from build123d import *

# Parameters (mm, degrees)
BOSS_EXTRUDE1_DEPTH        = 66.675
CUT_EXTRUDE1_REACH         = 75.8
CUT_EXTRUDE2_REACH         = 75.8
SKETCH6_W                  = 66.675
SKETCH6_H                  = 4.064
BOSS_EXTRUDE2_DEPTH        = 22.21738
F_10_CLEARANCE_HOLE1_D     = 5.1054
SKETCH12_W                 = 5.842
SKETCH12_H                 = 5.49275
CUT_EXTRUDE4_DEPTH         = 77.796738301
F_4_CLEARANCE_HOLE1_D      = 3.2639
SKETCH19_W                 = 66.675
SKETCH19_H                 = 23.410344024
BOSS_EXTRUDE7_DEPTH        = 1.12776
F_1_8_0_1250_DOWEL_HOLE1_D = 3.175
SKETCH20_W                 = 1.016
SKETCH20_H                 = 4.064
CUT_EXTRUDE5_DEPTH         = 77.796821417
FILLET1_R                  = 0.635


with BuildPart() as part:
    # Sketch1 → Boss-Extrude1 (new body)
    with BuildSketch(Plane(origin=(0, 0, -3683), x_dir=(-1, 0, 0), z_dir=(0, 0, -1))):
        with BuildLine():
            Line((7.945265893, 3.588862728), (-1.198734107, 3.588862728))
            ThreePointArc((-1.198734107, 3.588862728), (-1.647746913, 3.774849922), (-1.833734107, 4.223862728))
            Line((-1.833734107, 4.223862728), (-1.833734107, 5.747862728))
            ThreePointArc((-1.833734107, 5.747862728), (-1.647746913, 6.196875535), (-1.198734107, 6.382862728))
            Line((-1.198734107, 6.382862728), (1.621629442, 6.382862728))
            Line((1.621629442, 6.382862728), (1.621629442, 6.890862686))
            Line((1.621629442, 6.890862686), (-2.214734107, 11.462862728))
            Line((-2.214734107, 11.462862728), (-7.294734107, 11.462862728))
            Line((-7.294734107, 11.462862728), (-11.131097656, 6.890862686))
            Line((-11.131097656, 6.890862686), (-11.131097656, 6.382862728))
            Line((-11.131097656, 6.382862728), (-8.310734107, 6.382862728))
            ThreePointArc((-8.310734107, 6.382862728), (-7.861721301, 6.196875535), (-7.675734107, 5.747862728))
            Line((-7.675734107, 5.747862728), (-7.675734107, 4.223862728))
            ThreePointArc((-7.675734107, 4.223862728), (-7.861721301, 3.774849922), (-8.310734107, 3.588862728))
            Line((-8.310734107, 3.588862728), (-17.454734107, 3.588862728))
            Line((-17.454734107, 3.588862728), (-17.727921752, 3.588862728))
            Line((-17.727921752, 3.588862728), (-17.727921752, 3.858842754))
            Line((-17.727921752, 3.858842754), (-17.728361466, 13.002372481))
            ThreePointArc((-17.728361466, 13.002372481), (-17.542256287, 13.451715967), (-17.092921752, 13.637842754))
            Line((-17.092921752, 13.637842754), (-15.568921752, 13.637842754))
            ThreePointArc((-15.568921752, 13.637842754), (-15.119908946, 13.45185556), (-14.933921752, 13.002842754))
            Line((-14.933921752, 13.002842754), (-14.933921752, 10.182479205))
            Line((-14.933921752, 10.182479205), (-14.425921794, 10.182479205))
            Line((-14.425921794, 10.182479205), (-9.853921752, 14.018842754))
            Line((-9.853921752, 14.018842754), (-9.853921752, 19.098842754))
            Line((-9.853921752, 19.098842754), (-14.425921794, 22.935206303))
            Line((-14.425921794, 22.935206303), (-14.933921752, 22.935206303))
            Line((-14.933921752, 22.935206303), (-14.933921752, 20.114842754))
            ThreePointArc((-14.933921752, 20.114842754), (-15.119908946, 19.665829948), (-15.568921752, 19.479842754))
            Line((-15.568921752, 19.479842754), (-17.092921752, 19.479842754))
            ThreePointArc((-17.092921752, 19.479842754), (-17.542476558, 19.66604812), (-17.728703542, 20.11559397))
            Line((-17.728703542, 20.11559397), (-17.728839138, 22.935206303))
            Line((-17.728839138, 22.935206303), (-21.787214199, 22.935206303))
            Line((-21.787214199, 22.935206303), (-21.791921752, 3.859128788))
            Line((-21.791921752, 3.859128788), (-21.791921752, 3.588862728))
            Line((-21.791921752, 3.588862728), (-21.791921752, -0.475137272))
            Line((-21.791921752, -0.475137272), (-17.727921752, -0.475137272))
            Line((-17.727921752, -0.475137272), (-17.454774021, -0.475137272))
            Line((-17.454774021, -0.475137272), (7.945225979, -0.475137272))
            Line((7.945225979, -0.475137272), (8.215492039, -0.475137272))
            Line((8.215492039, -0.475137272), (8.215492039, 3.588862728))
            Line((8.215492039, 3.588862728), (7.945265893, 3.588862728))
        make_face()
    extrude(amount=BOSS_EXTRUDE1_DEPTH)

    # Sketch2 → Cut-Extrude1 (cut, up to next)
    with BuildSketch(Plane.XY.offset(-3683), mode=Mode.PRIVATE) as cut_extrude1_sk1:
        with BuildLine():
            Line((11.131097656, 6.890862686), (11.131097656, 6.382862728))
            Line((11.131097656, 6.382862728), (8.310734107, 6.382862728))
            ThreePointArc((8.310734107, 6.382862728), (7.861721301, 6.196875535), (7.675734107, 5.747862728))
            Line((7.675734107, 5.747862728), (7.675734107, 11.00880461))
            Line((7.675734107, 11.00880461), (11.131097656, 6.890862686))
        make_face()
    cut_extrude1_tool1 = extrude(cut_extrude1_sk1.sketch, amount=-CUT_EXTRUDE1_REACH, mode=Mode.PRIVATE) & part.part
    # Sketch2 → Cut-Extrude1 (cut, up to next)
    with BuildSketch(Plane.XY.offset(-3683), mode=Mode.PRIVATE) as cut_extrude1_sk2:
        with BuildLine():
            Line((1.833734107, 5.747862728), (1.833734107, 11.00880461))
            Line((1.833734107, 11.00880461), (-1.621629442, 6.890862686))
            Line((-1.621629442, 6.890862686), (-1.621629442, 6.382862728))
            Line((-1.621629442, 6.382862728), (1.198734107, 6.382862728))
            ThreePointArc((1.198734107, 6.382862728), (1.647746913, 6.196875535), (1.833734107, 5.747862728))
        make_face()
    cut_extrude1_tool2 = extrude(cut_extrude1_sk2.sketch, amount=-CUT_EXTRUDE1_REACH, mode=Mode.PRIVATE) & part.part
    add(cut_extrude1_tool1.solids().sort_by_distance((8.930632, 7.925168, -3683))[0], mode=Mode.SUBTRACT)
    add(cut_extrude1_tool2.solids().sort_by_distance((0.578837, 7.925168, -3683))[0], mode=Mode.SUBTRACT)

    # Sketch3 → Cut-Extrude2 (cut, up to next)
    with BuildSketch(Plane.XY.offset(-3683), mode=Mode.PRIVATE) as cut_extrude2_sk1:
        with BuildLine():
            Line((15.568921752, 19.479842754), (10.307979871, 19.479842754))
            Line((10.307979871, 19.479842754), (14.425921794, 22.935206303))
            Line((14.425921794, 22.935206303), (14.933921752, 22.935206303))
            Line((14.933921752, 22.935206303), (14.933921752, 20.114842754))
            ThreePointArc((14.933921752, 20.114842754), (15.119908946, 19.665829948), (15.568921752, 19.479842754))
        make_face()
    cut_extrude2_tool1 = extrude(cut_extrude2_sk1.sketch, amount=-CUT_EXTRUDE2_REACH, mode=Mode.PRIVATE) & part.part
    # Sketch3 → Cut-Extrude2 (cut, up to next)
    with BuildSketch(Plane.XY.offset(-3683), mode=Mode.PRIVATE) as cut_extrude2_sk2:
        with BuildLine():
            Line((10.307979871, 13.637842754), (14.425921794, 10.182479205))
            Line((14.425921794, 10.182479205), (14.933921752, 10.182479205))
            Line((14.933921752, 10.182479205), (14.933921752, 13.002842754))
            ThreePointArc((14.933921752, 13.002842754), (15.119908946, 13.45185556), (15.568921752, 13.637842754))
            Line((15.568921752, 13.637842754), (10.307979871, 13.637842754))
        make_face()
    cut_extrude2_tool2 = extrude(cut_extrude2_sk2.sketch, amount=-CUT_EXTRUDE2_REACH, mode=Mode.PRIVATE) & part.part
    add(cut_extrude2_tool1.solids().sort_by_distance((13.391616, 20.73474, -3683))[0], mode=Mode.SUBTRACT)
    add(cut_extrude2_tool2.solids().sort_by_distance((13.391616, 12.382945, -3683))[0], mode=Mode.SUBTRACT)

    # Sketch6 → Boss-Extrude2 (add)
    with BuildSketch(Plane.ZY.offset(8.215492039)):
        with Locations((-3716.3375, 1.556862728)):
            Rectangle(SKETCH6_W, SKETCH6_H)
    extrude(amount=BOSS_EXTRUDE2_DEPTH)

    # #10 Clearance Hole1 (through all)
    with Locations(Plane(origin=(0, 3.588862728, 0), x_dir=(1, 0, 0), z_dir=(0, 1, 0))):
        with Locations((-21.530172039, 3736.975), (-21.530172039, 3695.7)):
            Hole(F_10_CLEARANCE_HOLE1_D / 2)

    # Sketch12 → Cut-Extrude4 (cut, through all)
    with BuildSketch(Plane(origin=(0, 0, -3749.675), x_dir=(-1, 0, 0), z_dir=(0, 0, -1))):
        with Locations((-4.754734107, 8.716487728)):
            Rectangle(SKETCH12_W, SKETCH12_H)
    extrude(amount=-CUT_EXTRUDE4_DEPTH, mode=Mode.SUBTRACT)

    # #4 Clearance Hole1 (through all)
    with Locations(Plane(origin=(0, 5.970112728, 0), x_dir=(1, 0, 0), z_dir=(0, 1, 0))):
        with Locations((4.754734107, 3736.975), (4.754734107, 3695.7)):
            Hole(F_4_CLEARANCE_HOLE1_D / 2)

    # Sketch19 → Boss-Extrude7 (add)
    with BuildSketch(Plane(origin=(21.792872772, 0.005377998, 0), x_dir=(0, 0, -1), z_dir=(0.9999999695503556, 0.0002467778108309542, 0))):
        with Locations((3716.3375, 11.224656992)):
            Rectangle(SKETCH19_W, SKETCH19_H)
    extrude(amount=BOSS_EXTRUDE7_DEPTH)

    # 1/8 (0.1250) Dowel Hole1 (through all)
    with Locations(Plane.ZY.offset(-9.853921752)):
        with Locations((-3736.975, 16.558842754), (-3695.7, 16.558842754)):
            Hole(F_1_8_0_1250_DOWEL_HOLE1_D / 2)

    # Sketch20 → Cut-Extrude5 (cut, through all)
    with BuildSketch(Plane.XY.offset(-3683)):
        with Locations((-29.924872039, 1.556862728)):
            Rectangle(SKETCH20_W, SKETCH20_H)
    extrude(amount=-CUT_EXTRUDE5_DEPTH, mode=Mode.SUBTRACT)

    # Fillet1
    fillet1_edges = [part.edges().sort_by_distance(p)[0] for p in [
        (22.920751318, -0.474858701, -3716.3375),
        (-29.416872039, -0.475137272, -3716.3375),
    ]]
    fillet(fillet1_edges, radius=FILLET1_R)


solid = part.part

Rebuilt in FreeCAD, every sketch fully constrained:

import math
import FreeCAD as App
import Part
import Sketcher

V = App.Vector
Q = App.Units.Quantity


def edges_at(feature, points):
    """Names of the edges that pass closest to the given points."""
    edges = feature.Shape.Edges
    near = lambda p: min(range(len(edges)), key=lambda i: edges[i].distToShape(Part.Vertex(*p))[0])
    return sorted({f"Edge{near(p) + 1}" for p in points})

doc = App.newDocument("Part")
body = doc.addObject("PartDesign::Body", "Body")

# Sketch on XY plane
sketch1 = body.newObject("Sketcher::SketchObject", "Sketch")
sketch1.AttachmentSupport = (doc.getObject("XY_Plane"), [""])
sketch1.MapMode = "FlatFace"
sketch1.AttachmentOffset = App.Placement(V(0, 0, -145 * 25.4), App.Rotation())
sketch1.addGeometry(Part.ArcOfCircle(Part.Circle(V(1.2, 4.22, 0), V(0, 0, 1), 0.64), math.radians(-90), math.radians(0)), False)
sketch1.addGeometry(Part.LineSegment(V(1.83, 4.22, 0), V(1.83, 5.75, 0)), False)
sketch1.addGeometry(Part.ArcOfCircle(Part.Circle(V(1.2, 5.75, 0), V(0, 0, 1), 0.63), math.radians(0), math.radians(90)), False)
sketch1.addGeometry(Part.LineSegment(V(1.2, 6.38, 0), V(-1.62, 6.38, 0)), False)
sketch1.addGeometry(Part.LineSegment(V(-1.62, 6.38, 0), V(-1.62, 6.89, 0)), False)
sketch1.addGeometry(Part.LineSegment(V(-1.62, 6.89, 0), V(2.21, 11.46, 0)), False)
sketch1.addGeometry(Part.LineSegment(V(2.21, 11.46, 0), V(7.29, 11.46, 0)), False)
sketch1.addGeometry(Part.LineSegment(V(7.29, 11.46, 0), V(11.13, 6.89, 0)), False)
sketch1.addGeometry(Part.LineSegment(V(11.13, 6.89, 0), V(11.13, 6.38, 0)), False)
sketch1.addGeometry(Part.LineSegment(V(11.13, 6.38, 0), V(8.31, 6.38, 0)), False)
sketch1.addGeometry(Part.ArcOfCircle(Part.Circle(V(8.31, 5.75, 0), V(0, 0, 1), 0.63), math.radians(90), math.radians(180)), False)
sketch1.addGeometry(Part.LineSegment(V(7.68, 5.75, 0), V(7.68, 4.22, 0)), False)
sketch1.addGeometry(Part.ArcOfCircle(Part.Circle(V(8.31, 4.22, 0), V(0, 0, 1), 0.64), math.radians(180), math.radians(270)), False)
sketch1.addGeometry(Part.LineSegment(V(8.31, 3.59, 0), V(17.73, 3.59, 0)), False)
sketch1.addGeometry(Part.LineSegment(V(17.73, 3.59, 0), V(17.73, 3.86, 0)), False)
sketch1.addGeometry(Part.LineSegment(V(17.73, 3.86, 0), V(17.73, 13, 0)), False)
sketch1.addGeometry(Part.ArcOfCircle(Part.Circle(V(17.09, 13, 0), V(0, 0, 1), 0.64), math.radians(0), math.radians(90)), False)
sketch1.addGeometry(Part.LineSegment(V(17.09, 13.64, 0), V(15.57, 13.64, 0)), False)
sketch1.addGeometry(Part.ArcOfCircle(Part.Circle(V(15.57, 13, 0), V(0, 0, 1), 0.64), math.radians(90), math.radians(180)), False)
sketch1.addGeometry(Part.LineSegment(V(14.93, 13, 0), V(14.93, 10.18, 0)), False)
sketch1.addGeometry(Part.LineSegment(V(14.93, 10.18, 0), V(14.43, 10.18, 0)), False)
sketch1.addGeometry(Part.LineSegment(V(14.43, 10.18, 0), V(9.85, 14.02, 0)), False)
sketch1.addGeometry(Part.LineSegment(V(9.85, 14.02, 0), V(9.85, 19.1, 0)), False)
sketch1.addGeometry(Part.LineSegment(V(9.85, 19.1, 0), V(14.43, 22.94, 0)), False)
sketch1.addGeometry(Part.LineSegment(V(14.43, 22.94, 0), V(14.93, 22.94, 0)), False)
sketch1.addGeometry(Part.LineSegment(V(14.93, 22.94, 0), V(14.93, 20.11, 0)), False)
sketch1.addGeometry(Part.ArcOfCircle(Part.Circle(V(15.57, 20.11, 0), V(0, 0, 1), 0.64), math.radians(180), math.radians(270)), False)
sketch1.addGeometry(Part.LineSegment(V(15.57, 19.48, 0), V(17.09, 19.48, 0)), False)
sketch1.addGeometry(Part.ArcOfCircle(Part.Circle(V(17.09, 20.12, 0), V(0, 0, 1), 0.64), math.radians(-90), math.radians(0)), False)
sketch1.addGeometry(Part.LineSegment(V(17.73, 20.12, 0), V(17.73, 22.94, 0)), False)
sketch1.addGeometry(Part.LineSegment(V(17.73, 22.94, 0), V(21.79, 22.94, 0)), False)
sketch1.addGeometry(Part.LineSegment(V(21.79, 22.94, 0), V(21.79, 3.86, 0)), False)
sketch1.addGeometry(Part.LineSegment(V(21.79, 3.86, 0), V(21.79, -0.48, 0)), False)
sketch1.addGeometry(Part.LineSegment(V(21.79, -0.48, 0), V(-8.22, -0.48, 0)), False)
sketch1.addGeometry(Part.LineSegment(V(-8.22, -0.48, 0), V(-8.22, 3.59, 0)), False)
sketch1.addGeometry(Part.LineSegment(V(-8.22, 3.59, 0), V(1.2, 3.59, 0)), False)
sketch1.addConstraint(Sketcher.Constraint("Tangent", 0, 2, 1, 1))
sketch1.addConstraint(Sketcher.Constraint("Tangent", 1, 2, 2, 1))
sketch1.addConstraint(Sketcher.Constraint("Tangent", 2, 2, 3, 1))
sketch1.addConstraint(Sketcher.Constraint("Coincident", 3, 2, 4, 1))
sketch1.addConstraint(Sketcher.Constraint("Coincident", 4, 2, 5, 1))
sketch1.addConstraint(Sketcher.Constraint("Coincident", 5, 2, 6, 1))
sketch1.addConstraint(Sketcher.Constraint("Coincident", 6, 2, 7, 1))
sketch1.addConstraint(Sketcher.Constraint("Coincident", 7, 2, 8, 1))
sketch1.addConstraint(Sketcher.Constraint("Coincident", 8, 2, 9, 1))
sketch1.addConstraint(Sketcher.Constraint("Tangent", 9, 2, 10, 1))
sketch1.addConstraint(Sketcher.Constraint("Tangent", 10, 2, 11, 1))
sketch1.addConstraint(Sketcher.Constraint("Tangent", 11, 2, 12, 1))
sketch1.addConstraint(Sketcher.Constraint("Tangent", 12, 2, 13, 1))
sketch1.addConstraint(Sketcher.Constraint("Coincident", 13, 2, 14, 1))
sketch1.addConstraint(Sketcher.Constraint("Coincident", 14, 2, 15, 1))
sketch1.addConstraint(Sketcher.Constraint("Tangent", 15, 2, 16, 1))
sketch1.addConstraint(Sketcher.Constraint("Tangent", 16, 2, 17, 1))
sketch1.addConstraint(Sketcher.Constraint("Tangent", 17, 2, 18, 1))
sketch1.addConstraint(Sketcher.Constraint("Tangent", 18, 2, 19, 1))
sketch1.addConstraint(Sketcher.Constraint("Coincident", 19, 2, 20, 1))
sketch1.addConstraint(Sketcher.Constraint("Coincident", 20, 2, 21, 1))
sketch1.addConstraint(Sketcher.Constraint("Coincident", 21, 2, 22, 1))
sketch1.addConstraint(Sketcher.Constraint("Coincident", 22, 2, 23, 1))
sketch1.addConstraint(Sketcher.Constraint("Coincident", 23, 2, 24, 1))
sketch1.addConstraint(Sketcher.Constraint("Coincident", 24, 2, 25, 1))
sketch1.addConstraint(Sketcher.Constraint("Tangent", 25, 2, 26, 1))
sketch1.addConstraint(Sketcher.Constraint("Tangent", 26, 2, 27, 1))
sketch1.addConstraint(Sketcher.Constraint("Tangent", 27, 2, 28, 1))
sketch1.addConstraint(Sketcher.Constraint("Tangent", 28, 2, 29, 1))
sketch1.addConstraint(Sketcher.Constraint("Coincident", 29, 2, 30, 1))
sketch1.addConstraint(Sketcher.Constraint("Coincident", 30, 2, 31, 1))
sketch1.addConstraint(Sketcher.Constraint("Coincident", 31, 2, 32, 1))
sketch1.addConstraint(Sketcher.Constraint("Coincident", 32, 2, 33, 1))
sketch1.addConstraint(Sketcher.Constraint("Coincident", 33, 2, 34, 1))
sketch1.addConstraint(Sketcher.Constraint("Coincident", 34, 2, 35, 1))
sketch1.addConstraint(Sketcher.Constraint("Tangent", 35, 2, 0, 1))
sketch1.addConstraint(Sketcher.Constraint("Vertical", 1))
sketch1.addConstraint(Sketcher.Constraint("Horizontal", 3))
sketch1.addConstraint(Sketcher.Constraint("Vertical", 4))
sketch1.addConstraint(Sketcher.Constraint("Horizontal", 6))
sketch1.addConstraint(Sketcher.Constraint("Vertical", 8))
sketch1.addConstraint(Sketcher.Constraint("Horizontal", 9))
sketch1.addConstraint(Sketcher.Constraint("Vertical", 11))
sketch1.addConstraint(Sketcher.Constraint("Horizontal", 13))
sketch1.addConstraint(Sketcher.Constraint("Vertical", 14))
sketch1.addConstraint(Sketcher.Constraint("Horizontal", 17))
sketch1.addConstraint(Sketcher.Constraint("Vertical", 19))
sketch1.addConstraint(Sketcher.Constraint("Horizontal", 20))
sketch1.addConstraint(Sketcher.Constraint("Vertical", 22))
sketch1.addConstraint(Sketcher.Constraint("Horizontal", 24))
sketch1.addConstraint(Sketcher.Constraint("Vertical", 25))
sketch1.addConstraint(Sketcher.Constraint("Horizontal", 27))
sketch1.addConstraint(Sketcher.Constraint("Horizontal", 30))
sketch1.addConstraint(Sketcher.Constraint("Vertical", 32))
sketch1.addConstraint(Sketcher.Constraint("Horizontal", 33))
sketch1.addConstraint(Sketcher.Constraint("Vertical", 34))
sketch1.addConstraint(Sketcher.Constraint("Horizontal", 35))
sketch1.addConstraint(Sketcher.Constraint("Equal", 0, 2))
sketch1.addConstraint(Sketcher.Constraint("Equal", 2, 10))
sketch1.addConstraint(Sketcher.Constraint("Equal", 10, 12))
sketch1.addConstraint(Sketcher.Constraint("Equal", 12, 18))
sketch1.addConstraint(Sketcher.Constraint("Equal", 18, 26))
sketch1.addConstraint(Sketcher.Constraint("Perpendicular", 5, 21))
sketch1.addConstraint(Sketcher.Constraint("Perpendicular", 7, 23))
sketch1.addConstraint(Sketcher.Constraint("Parallel", 15, 29))
sketch1.addConstraint(Sketcher.Constraint("Horizontal", 2, 3, 10, 3))
sketch1.addConstraint(Sketcher.Constraint("Horizontal", 0, 3, 12, 3))
sketch1.addConstraint(Sketcher.Constraint("Horizontal", 4, 2, 7, 2))
sketch1.addConstraint(Sketcher.Constraint("Horizontal", 24, 2, 29, 2))
sketch1.addConstraint(Sketcher.Constraint("Vertical", 18, 3, 26, 3))
sketch1.addConstraint(Sketcher.Constraint("Vertical", 16, 3, 28, 3))
sketch1.addConstraint(Sketcher.Constraint("Vertical", 20, 2, 23, 2))
sketch1.addConstraint(Sketcher.Constraint("Equal", 3, 9))
sketch1.addConstraint(Sketcher.Constraint("Equal", 27, 1))
sketch1.addConstraint(Sketcher.Constraint("Equal", 24, 4))
sketch1.addConstraint(Sketcher.Constraint("Equal", 9, 19))
sketch1.addConstraint(Sketcher.Constraint("Equal", 6, 22))
sketch1.addConstraint(Sketcher.Constraint("Equal", 19, 25))
sketch1.addConstraint(Sketcher.Constraint("Equal", 5, 7))
sketch1.addConstraint(Sketcher.Constraint("Equal", 7, 21))
sketch1.addConstraint(Sketcher.Constraint("DistanceX", 6, 1, 6, 2, Q("0.2 in")))
sketch1.addConstraint(Sketcher.Constraint("Angle", 5, Q("50 deg")))
sketch1.addConstraint(Sketcher.Constraint("Radius", 0, Q("0.025 in")))
sketch1.addConstraint(Sketcher.Constraint("DistanceX", 17, 2, 17, 1, Q("0.06 in")))
sketch1.addConstraint(Sketcher.Constraint("DistanceX", 20, 2, 20, 1, Q("0.02 in")))
sketch1.addConstraint(Sketcher.Constraint("DistanceY", 34, 1, 34, 2, Q("0.16 in")))
sketch1.addConstraint(Sketcher.Constraint("DistanceY", 2, 2, 5, 2, Q("0.2 in")))
sketch1.addConstraint(Sketcher.Constraint("DistanceX", 2, 3, 10, 3, Q("0.28 in")))
sketch1.addConstraint(Sketcher.Constraint("DistanceY", 14, 2, 18, 3, Q("0.36 in")))
sketch1.addConstraint(Sketcher.Constraint("DistanceX", 14, 2, 31, 2, Q("0.16 in")))
sketch1.addConstraint(Sketcher.Constraint("DistanceX", 19, 2, 31, 2, Q("0.27 in")))
sketch1.addConstraint(Sketcher.Constraint("Radius", 16, 0.63544))
sketch1.addConstraint(Sketcher.Constraint("Radius", 28, 0.635782))
sketch1.addConstraint(Sketcher.Constraint("DistanceY", 14, 1, 14, 2, 0.26998))
sketch1.addConstraint(Sketcher.Constraint("Distance", 31, 19.076078))
sketch1.addConstraint(Sketcher.Constraint("DistanceX", 13, 1, 13, 2, 9.417188))
sketch1.addConstraint(Sketcher.Constraint("DistanceX", 30, 1, 30, 2, 4.058375))
sketch1.addConstraint(Sketcher.Constraint("DistanceX", 33, 2, 33, 1, 30.007414))
sketch1.addConstraint(Sketcher.Constraint("DistanceX", -1, 1, 16, 3, 17.092922))
sketch1.addConstraint(Sketcher.Constraint("DistanceY", -1, 1, 19, 2, 10.182479))
pad1 = body.newObject("PartDesign::Pad", "Pad")
pad1.Profile = sketch1
pad1.Length = Q("2.625 in")
pad1.Reversed = True

# Sketch on XY plane
sketch2 = body.newObject("Sketcher::SketchObject", "Sketch001")
sketch2.AttachmentSupport = (doc.getObject("XY_Plane"), [""])
sketch2.MapMode = "FlatFace"
sketch2.AttachmentOffset = App.Placement(V(0, 0, -145 * 25.4), App.Rotation())
sketch2.addGeometry(Part.LineSegment(V(11.1, 6.4, 0), V(11.1, 6.9, 0)), False)
sketch2.addGeometry(Part.LineSegment(V(11.1, 6.9, 0), V(7.7, 11, 0)), False)
sketch2.addGeometry(Part.LineSegment(V(7.7, 11, 0), V(7.7, 5.7, 0)), False)
sketch2.addGeometry(Part.ArcOfCircle(Part.Circle(V(8.3, 5.7, 0), V(0, 0, 1), 0.6), math.radians(90), math.radians(180)), False)
sketch2.addGeometry(Part.LineSegment(V(8.3, 6.4, 0), V(11.1, 6.4, 0)), False)
sketch2.addConstraint(Sketcher.Constraint("Coincident", 0, 2, 1, 1))
sketch2.addConstraint(Sketcher.Constraint("Coincident", 1, 2, 2, 1))
sketch2.addConstraint(Sketcher.Constraint("Tangent", 2, 2, 3, 2))
sketch2.addConstraint(Sketcher.Constraint("Tangent", 3, 1, 4, 1))
sketch2.addConstraint(Sketcher.Constraint("Coincident", 4, 2, 0, 1))
sketch2.addConstraint(Sketcher.Constraint("Vertical", 0))
sketch2.addConstraint(Sketcher.Constraint("Vertical", 2))
sketch2.addConstraint(Sketcher.Constraint("Horizontal", 4))
sketch2.addConstraint(Sketcher.Constraint("Angle", 1, Q("130 deg")))
sketch2.addConstraint(Sketcher.Constraint("Radius", 3, Q("0.025 in")))
sketch2.addConstraint(Sketcher.Constraint("DistanceY", 0, 1, 0, 2, Q("0.02 in")))
sketch2.addConstraint(Sketcher.Constraint("DistanceY", 2, 2, 2, 1, 5.260942))
sketch2.addConstraint(Sketcher.Constraint("DistanceX", -1, 1, 3, 3, 8.310734))
sketch2.addConstraint(Sketcher.Constraint("DistanceY", -1, 1, 3, 3, 5.747863))
pocket1 = body.newObject("PartDesign::Pocket", "Pocket")
pocket1.Profile = sketch2
pocket1.Type = "UpToFirst"

# Sketch on XY plane
sketch3 = body.newObject("Sketcher::SketchObject", "Sketch002")
sketch3.AttachmentSupport = (doc.getObject("XY_Plane"), [""])
sketch3.MapMode = "FlatFace"
sketch3.AttachmentOffset = App.Placement(V(0, 0, -145 * 25.4), App.Rotation())
sketch3.addGeometry(Part.LineSegment(V(1.8, 5.7, 0), V(1.8, 11, 0)), False)
sketch3.addGeometry(Part.LineSegment(V(1.8, 11, 0), V(-1.6, 6.9, 0)), False)
sketch3.addGeometry(Part.LineSegment(V(-1.6, 6.9, 0), V(-1.6, 6.4, 0)), False)
sketch3.addGeometry(Part.LineSegment(V(-1.6, 6.4, 0), V(1.2, 6.4, 0)), False)
sketch3.addGeometry(Part.ArcOfCircle(Part.Circle(V(1.2, 5.7, 0), V(0, 0, 1), 0.6), math.radians(0), math.radians(90)), False)
sketch3.addConstraint(Sketcher.Constraint("Coincident", 0, 2, 1, 1))
sketch3.addConstraint(Sketcher.Constraint("Coincident", 1, 2, 2, 1))
sketch3.addConstraint(Sketcher.Constraint("Coincident", 2, 2, 3, 1))
sketch3.addConstraint(Sketcher.Constraint("Tangent", 3, 2, 4, 2))
sketch3.addConstraint(Sketcher.Constraint("Tangent", 4, 1, 0, 1))
sketch3.addConstraint(Sketcher.Constraint("Vertical", 0))
sketch3.addConstraint(Sketcher.Constraint("Vertical", 2))
sketch3.addConstraint(Sketcher.Constraint("Horizontal", 3))
sketch3.addConstraint(Sketcher.Constraint("Angle", 1, Q("-130 deg")))
sketch3.addConstraint(Sketcher.Constraint("Radius", 4, Q("0.025 in")))
sketch3.addConstraint(Sketcher.Constraint("DistanceY", 2, 2, 2, 1, Q("0.02 in")))
sketch3.addConstraint(Sketcher.Constraint("DistanceY", 0, 1, 0, 2, 5.260942))
sketch3.addConstraint(Sketcher.Constraint("DistanceX", 1, 2, -1, 1, 1.621629))
sketch3.addConstraint(Sketcher.Constraint("DistanceY", -1, 1, 4, 3, 5.747863))
pocket2 = body.newObject("PartDesign::Pocket", "Pocket001")
pocket2.Profile = sketch3
pocket2.Type = "UpToFirst"

# Sketch on XY plane
sketch4 = body.newObject("Sketcher::SketchObject", "Sketch003")
sketch4.AttachmentSupport = (doc.getObject("XY_Plane"), [""])
sketch4.MapMode = "FlatFace"
sketch4.AttachmentOffset = App.Placement(V(0, 0, -145 * 25.4), App.Rotation())
sketch4.addGeometry(Part.LineSegment(V(10.3, 19.5, 0), V(15.6, 19.5, 0)), False)
sketch4.addGeometry(Part.ArcOfCircle(Part.Circle(V(15.6, 20.1, 0), V(0, 0, 1), 0.6), math.radians(180), math.radians(270)), False)
sketch4.addGeometry(Part.LineSegment(V(14.9, 20.1, 0), V(14.9, 22.9, 0)), False)
sketch4.addGeometry(Part.LineSegment(V(14.9, 22.9, 0), V(14.4, 22.9, 0)), False)
sketch4.addGeometry(Part.LineSegment(V(14.4, 22.9, 0), V(10.3, 19.5, 0)), False)
sketch4.addConstraint(Sketcher.Constraint("Tangent", 0, 2, 1, 2))
sketch4.addConstraint(Sketcher.Constraint("Tangent", 1, 1, 2, 1))
sketch4.addConstraint(Sketcher.Constraint("Coincident", 2, 2, 3, 1))
sketch4.addConstraint(Sketcher.Constraint("Coincident", 3, 2, 4, 1))
sketch4.addConstraint(Sketcher.Constraint("Coincident", 4, 2, 0, 1))
sketch4.addConstraint(Sketcher.Constraint("Horizontal", 0))
sketch4.addConstraint(Sketcher.Constraint("Vertical", 2))
sketch4.addConstraint(Sketcher.Constraint("Horizontal", 3))
sketch4.addConstraint(Sketcher.Constraint("Angle", 4, Q("-140 deg")))
sketch4.addConstraint(Sketcher.Constraint("Radius", 1, Q("0.025 in")))
sketch4.addConstraint(Sketcher.Constraint("DistanceX", 3, 2, 3, 1, Q("0.02 in")))
sketch4.addConstraint(Sketcher.Constraint("DistanceX", 0, 1, 0, 2, 5.260942))
sketch4.addConstraint(Sketcher.Constraint("DistanceX", -1, 1, 1, 3, 15.568922))
sketch4.addConstraint(Sketcher.Constraint("DistanceY", -1, 1, 1, 3, 20.114843))
pocket3 = body.newObject("PartDesign::Pocket", "Pocket002")
pocket3.Profile = sketch4
pocket3.Type = "UpToFirst"

# Sketch on XY plane
sketch5 = body.newObject("Sketcher::SketchObject", "Sketch004")
sketch5.AttachmentSupport = (doc.getObject("XY_Plane"), [""])
sketch5.MapMode = "FlatFace"
sketch5.AttachmentOffset = App.Placement(V(0, 0, -145 * 25.4), App.Rotation())
sketch5.addGeometry(Part.LineSegment(V(10.3, 13.6, 0), V(14.4, 10.2, 0)), False)
sketch5.addGeometry(Part.LineSegment(V(14.4, 10.2, 0), V(14.9, 10.2, 0)), False)
sketch5.addGeometry(Part.LineSegment(V(14.9, 10.2, 0), V(14.9, 13, 0)), False)
sketch5.addGeometry(Part.ArcOfCircle(Part.Circle(V(15.6, 13, 0), V(0, 0, 1), 0.6), math.radians(90), math.radians(180)), False)
sketch5.addGeometry(Part.LineSegment(V(15.6, 13.6, 0), V(10.3, 13.6, 0)), False)
sketch5.addConstraint(Sketcher.Constraint("Coincident", 0, 2, 1, 1))
sketch5.addConstraint(Sketcher.Constraint("Coincident", 1, 2, 2, 1))
sketch5.addConstraint(Sketcher.Constraint("Tangent", 2, 2, 3, 2))
sketch5.addConstraint(Sketcher.Constraint("Tangent", 3, 1, 4, 1))
sketch5.addConstraint(Sketcher.Constraint("Coincident", 4, 2, 0, 1))
sketch5.addConstraint(Sketcher.Constraint("Horizontal", 1))
sketch5.addConstraint(Sketcher.Constraint("Vertical", 2))
sketch5.addConstraint(Sketcher.Constraint("Horizontal", 4))
sketch5.addConstraint(Sketcher.Constraint("Angle", 0, Q("-40 deg")))
sketch5.addConstraint(Sketcher.Constraint("Radius", 3, Q("0.025 in")))
sketch5.addConstraint(Sketcher.Constraint("DistanceX", 1, 1, 1, 2, Q("0.02 in")))
sketch5.addConstraint(Sketcher.Constraint("DistanceX", 4, 2, 4, 1, 5.260942))
sketch5.addConstraint(Sketcher.Constraint("DistanceX", -1, 1, 3, 3, 15.568922))
sketch5.addConstraint(Sketcher.Constraint("DistanceY", -1, 1, 0, 2, 10.182479))
pocket4 = body.newObject("PartDesign::Pocket", "Pocket003")
pocket4.Profile = sketch5
pocket4.Type = "UpToFirst"

# Sketch on YZ plane
sketch6 = body.newObject("Sketcher::SketchObject", "Sketch005")
sketch6.AttachmentSupport = (doc.getObject("YZ_Plane"), [""])
sketch6.MapMode = "FlatFace"
sketch6.AttachmentOffset = App.Placement(V(0, 0, -8.215492), App.Rotation())
sketch6.addGeometry(Part.LineSegment(V(3.6, -3749.7, 0), V(-0.5, -3749.7, 0)), False)
sketch6.addGeometry(Part.LineSegment(V(-0.5, -3749.7, 0), V(-0.5, -3683, 0)), False)
sketch6.addGeometry(Part.LineSegment(V(-0.5, -3683, 0), V(3.6, -3683, 0)), False)
sketch6.addGeometry(Part.LineSegment(V(3.6, -3683, 0), V(3.6, -3749.7, 0)), False)
sketch6.addConstraint(Sketcher.Constraint("Coincident", 0, 2, 1, 1))
sketch6.addConstraint(Sketcher.Constraint("Coincident", 1, 2, 2, 1))
sketch6.addConstraint(Sketcher.Constraint("Coincident", 2, 2, 3, 1))
sketch6.addConstraint(Sketcher.Constraint("Coincident", 3, 2, 0, 1))
sketch6.addConstraint(Sketcher.Constraint("Horizontal", 0))
sketch6.addConstraint(Sketcher.Constraint("Vertical", 1))
sketch6.addConstraint(Sketcher.Constraint("Horizontal", 2))
sketch6.addConstraint(Sketcher.Constraint("Vertical", 3))
sketch6.addConstraint(Sketcher.Constraint("DistanceY", 1, 2, -1, 1, Q("145 in")))
sketch6.addConstraint(Sketcher.Constraint("DistanceX", 0, 2, 0, 1, Q("0.16 in")))
sketch6.addConstraint(Sketcher.Constraint("DistanceY", 1, 1, 1, 2, Q("2.625 in")))
sketch6.addConstraint(Sketcher.Constraint("DistanceX", 0, 2, -1, 1, 0.475137))
pad2 = body.newObject("PartDesign::Pad", "Pad001")
pad2.Profile = sketch6
pad2.Length = Q("0.8747 in")
pad2.Reversed = True

# Sketch on XZ plane
sketch7 = body.newObject("Sketcher::SketchObject", "Sketch006")
sketch7.AttachmentSupport = (doc.getObject("XZ_Plane"), [""])
sketch7.MapMode = "FlatFace"
sketch7.AttachmentOffset = App.Placement(V(0, 0, -3.588863), App.Rotation())
sketch7.addGeometry(Part.Circle(V(-21.5, -3737, 0), V(0, 0, 1), 2.6), False)
sketch7.addGeometry(Part.Circle(V(-21.5, -3695.7, 0), V(0, 0, 1), 2.6), False)
sketch7.addConstraint(Sketcher.Constraint("Equal", 0, 1))
sketch7.addConstraint(Sketcher.Constraint("Vertical", 0, 3, 1, 3))
sketch7.addConstraint(Sketcher.Constraint("Diameter", 0, Q("0.201 in")))
sketch7.addConstraint(Sketcher.Constraint("DistanceY", 1, 3, -1, 1, Q("145.5 in")))
sketch7.addConstraint(Sketcher.Constraint("DistanceY", 0, 3, -1, 1, Q("147.125 in")))
sketch7.addConstraint(Sketcher.Constraint("DistanceX", 0, 3, -1, 1, 21.530172))
doc.recompute()
hole = body.newObject("PartDesign::Hole", "Hole")
hole.Profile = sketch7
hole.ThreadType = "None"
hole.Diameter = Q("0.201 in")
hole.DepthType = "ThroughAll"
hole.Reversed = True

# Sketch on XY plane
sketch8 = body.newObject("Sketcher::SketchObject", "Sketch007")
sketch8.AttachmentSupport = (doc.getObject("XY_Plane"), [""])
sketch8.MapMode = "FlatFace"
sketch8.AttachmentOffset = App.Placement(V(0, 0, -147.625 * 25.4), App.Rotation())
sketch8.addGeometry(Part.LineSegment(V(8, 11, 0), V(8, 6, 0)), False)
sketch8.addGeometry(Part.LineSegment(V(8, 6, 0), V(2, 6, 0)), False)
sketch8.addGeometry(Part.LineSegment(V(2, 6, 0), V(2, 11, 0)), False)
sketch8.addGeometry(Part.LineSegment(V(2, 11, 0), V(8, 11, 0)), False)
sketch8.addConstraint(Sketcher.Constraint("Coincident", 0, 2, 1, 1))
sketch8.addConstraint(Sketcher.Constraint("Coincident", 1, 2, 2, 1))
sketch8.addConstraint(Sketcher.Constraint("Coincident", 2, 2, 3, 1))
sketch8.addConstraint(Sketcher.Constraint("Coincident", 3, 2, 0, 1))
sketch8.addConstraint(Sketcher.Constraint("Vertical", 0))
sketch8.addConstraint(Sketcher.Constraint("Horizontal", 1))
sketch8.addConstraint(Sketcher.Constraint("Vertical", 2))
sketch8.addConstraint(Sketcher.Constraint("Horizontal", 3))
sketch8.addConstraint(Sketcher.Constraint("DistanceX", 1, 2, 1, 1, Q("0.23 in")))
sketch8.addConstraint(Sketcher.Constraint("DistanceY", 0, 2, 0, 1, 5.49275))
sketch8.addConstraint(Sketcher.Constraint("DistanceX", -1, 1, 0, 2, 7.675734))
sketch8.addConstraint(Sketcher.Constraint("DistanceY", -1, 1, 0, 2, 5.970113))
pocket5 = body.newObject("PartDesign::Pocket", "Pocket004")
pocket5.Profile = sketch8
pocket5.Type = "ThroughAll"
pocket5.Reversed = True

# Sketch on XZ plane
sketch9 = body.newObject("Sketcher::SketchObject", "Sketch008")
sketch9.AttachmentSupport = (doc.getObject("XZ_Plane"), [""])
sketch9.MapMode = "FlatFace"
sketch9.AttachmentOffset = App.Placement(V(0, 0, -5.970113), App.Rotation())
sketch9.addGeometry(Part.Circle(V(4.8, -3737, 0), V(0, 0, 1), 1.6), False)
sketch9.addGeometry(Part.Circle(V(4.8, -3695.7, 0), V(0, 0, 1), 1.6), False)
sketch9.addConstraint(Sketcher.Constraint("Equal", 0, 1))
sketch9.addConstraint(Sketcher.Constraint("Vertical", 0, 3, 1, 3))
sketch9.addConstraint(Sketcher.Constraint("Diameter", 0, Q("0.1285 in")))
sketch9.addConstraint(Sketcher.Constraint("DistanceY", 1, 3, -1, 1, Q("145.5 in")))
sketch9.addConstraint(Sketcher.Constraint("DistanceY", 0, 3, -1, 1, Q("147.125 in")))
sketch9.addConstraint(Sketcher.Constraint("DistanceX", -1, 1, 0, 3, 4.754734))
doc.recompute()
hole2 = body.newObject("PartDesign::Hole", "Hole001")
hole2.Profile = sketch9
hole2.ThreadType = "None"
hole2.Diameter = Q("0.1285 in")
hole2.DepthType = "ThroughAll"
hole2.Reversed = True

# Sketch on an angled plane
sketch10 = body.newObject("Sketcher::SketchObject", "Sketch009")
sketch10.Placement = App.Placement(V(21.792873, 0.005378, 0), App.Rotation(V(0, 0, -1), V(-0.000246778, 0.99999997, 0), V(0.99999997, 0.000246778, 0), "ZXY"))
sketch10.addGeometry(Part.LineSegment(V(3683, 23, 0), V(3683, 0, 0)), False)
sketch10.addGeometry(Part.LineSegment(V(3683, 0, 0), V(3750, 0, 0)), False)
sketch10.addGeometry(Part.LineSegment(V(3750, 0, 0), V(3750, 23, 0)), False)
sketch10.addGeometry(Part.LineSegment(V(3750, 23, 0), V(3683, 23, 0)), False)
sketch10.addConstraint(Sketcher.Constraint("Coincident", 0, 2, 1, 1))
sketch10.addConstraint(Sketcher.Constraint("Coincident", 1, 2, 2, 1))
sketch10.addConstraint(Sketcher.Constraint("Coincident", 2, 2, 3, 1))
sketch10.addConstraint(Sketcher.Constraint("Coincident", 3, 2, 0, 1))
sketch10.addConstraint(Sketcher.Constraint("Vertical", 0))
sketch10.addConstraint(Sketcher.Constraint("Horizontal", 1))
sketch10.addConstraint(Sketcher.Constraint("Vertical", 2))
sketch10.addConstraint(Sketcher.Constraint("Horizontal", 3))
sketch10.addConstraint(Sketcher.Constraint("DistanceX", -1, 1, 0, 2, Q("145 in")))
sketch10.addConstraint(Sketcher.Constraint("DistanceX", 1, 1, 1, 2, Q("2.625 in")))
sketch10.addConstraint(Sketcher.Constraint("DistanceY", 0, 2, 0, 1, 23.410344))
sketch10.addConstraint(Sketcher.Constraint("DistanceY", -1, 1, 2, 2, 22.929829))
pad3 = body.newObject("PartDesign::Pad", "Pad002")
pad3.Profile = sketch10
pad3.Length = Q("0.0444 in")

# Sketch on YZ plane
sketch11 = body.newObject("Sketcher::SketchObject", "Sketch010")
sketch11.AttachmentSupport = (doc.getObject("YZ_Plane"), [""])
sketch11.MapMode = "FlatFace"
sketch11.AttachmentOffset = App.Placement(V(0, 0, 9.853922), App.Rotation())
sketch11.addGeometry(Part.Circle(V(16.6, -3737, 0), V(0, 0, 1), 1.6), False)
sketch11.addGeometry(Part.Circle(V(16.6, -3695.7, 0), V(0, 0, 1), 1.6), False)
sketch11.addConstraint(Sketcher.Constraint("Equal", 0, 1))
sketch11.addConstraint(Sketcher.Constraint("Vertical", 0, 3, 1, 3))
sketch11.addConstraint(Sketcher.Constraint("Diameter", 0, Q("0.125 in")))
sketch11.addConstraint(Sketcher.Constraint("DistanceY", 1, 3, -1, 1, Q("145.5 in")))
sketch11.addConstraint(Sketcher.Constraint("DistanceY", 0, 3, -1, 1, Q("147.125 in")))
sketch11.addConstraint(Sketcher.Constraint("DistanceX", -1, 1, 0, 3, 16.558843))
doc.recompute()
hole3 = body.newObject("PartDesign::Hole", "Hole002")
hole3.Profile = sketch11
hole3.ThreadType = "None"
hole3.Diameter = Q("0.125 in")
hole3.DepthType = "ThroughAll"
hole3.Reversed = True

# Sketch on XY plane
sketch12 = body.newObject("Sketcher::SketchObject", "Sketch011")
sketch12.AttachmentSupport = (doc.getObject("XY_Plane"), [""])
sketch12.MapMode = "FlatFace"
sketch12.AttachmentOffset = App.Placement(V(0, 0, -145 * 25.4), App.Rotation())
sketch12.addGeometry(Part.LineSegment(V(-30.4, 3.6, 0), V(-30.4, -0.5, 0)), False)
sketch12.addGeometry(Part.LineSegment(V(-30.4, -0.5, 0), V(-29.4, -0.5, 0)), False)
sketch12.addGeometry(Part.LineSegment(V(-29.4, -0.5, 0), V(-29.4, 3.6, 0)), False)
sketch12.addGeometry(Part.LineSegment(V(-29.4, 3.6, 0), V(-30.4, 3.6, 0)), False)
sketch12.addConstraint(Sketcher.Constraint("Coincident", 0, 2, 1, 1))
sketch12.addConstraint(Sketcher.Constraint("Coincident", 1, 2, 2, 1))
sketch12.addConstraint(Sketcher.Constraint("Coincident", 2, 2, 3, 1))
sketch12.addConstraint(Sketcher.Constraint("Coincident", 3, 2, 0, 1))
sketch12.addConstraint(Sketcher.Constraint("Vertical", 0))
sketch12.addConstraint(Sketcher.Constraint("Horizontal", 1))
sketch12.addConstraint(Sketcher.Constraint("Vertical", 2))
sketch12.addConstraint(Sketcher.Constraint("Horizontal", 3))
sketch12.addConstraint(Sketcher.Constraint("DistanceX", 1, 1, 1, 2, Q("0.04 in")))
sketch12.addConstraint(Sketcher.Constraint("DistanceY", 0, 2, 0, 1, Q("0.16 in")))
sketch12.addConstraint(Sketcher.Constraint("DistanceX", 0, 2, -1, 1, 30.432872))
sketch12.addConstraint(Sketcher.Constraint("DistanceY", 0, 2, -1, 1, 0.475137))
pocket6 = body.newObject("PartDesign::Pocket", "Pocket005")
pocket6.Profile = sketch12
pocket6.Type = "ThroughAll"
doc.recompute()

fillet = body.newObject("PartDesign::Fillet", "Fillet")
fillet.Base = (pocket6, edges_at(pocket6, [(22.921, -0.475, -3716.338), (-29.417, -0.475, -3716.338)]))
fillet.Radius = Q("0.025 in")

doc.recompute()
